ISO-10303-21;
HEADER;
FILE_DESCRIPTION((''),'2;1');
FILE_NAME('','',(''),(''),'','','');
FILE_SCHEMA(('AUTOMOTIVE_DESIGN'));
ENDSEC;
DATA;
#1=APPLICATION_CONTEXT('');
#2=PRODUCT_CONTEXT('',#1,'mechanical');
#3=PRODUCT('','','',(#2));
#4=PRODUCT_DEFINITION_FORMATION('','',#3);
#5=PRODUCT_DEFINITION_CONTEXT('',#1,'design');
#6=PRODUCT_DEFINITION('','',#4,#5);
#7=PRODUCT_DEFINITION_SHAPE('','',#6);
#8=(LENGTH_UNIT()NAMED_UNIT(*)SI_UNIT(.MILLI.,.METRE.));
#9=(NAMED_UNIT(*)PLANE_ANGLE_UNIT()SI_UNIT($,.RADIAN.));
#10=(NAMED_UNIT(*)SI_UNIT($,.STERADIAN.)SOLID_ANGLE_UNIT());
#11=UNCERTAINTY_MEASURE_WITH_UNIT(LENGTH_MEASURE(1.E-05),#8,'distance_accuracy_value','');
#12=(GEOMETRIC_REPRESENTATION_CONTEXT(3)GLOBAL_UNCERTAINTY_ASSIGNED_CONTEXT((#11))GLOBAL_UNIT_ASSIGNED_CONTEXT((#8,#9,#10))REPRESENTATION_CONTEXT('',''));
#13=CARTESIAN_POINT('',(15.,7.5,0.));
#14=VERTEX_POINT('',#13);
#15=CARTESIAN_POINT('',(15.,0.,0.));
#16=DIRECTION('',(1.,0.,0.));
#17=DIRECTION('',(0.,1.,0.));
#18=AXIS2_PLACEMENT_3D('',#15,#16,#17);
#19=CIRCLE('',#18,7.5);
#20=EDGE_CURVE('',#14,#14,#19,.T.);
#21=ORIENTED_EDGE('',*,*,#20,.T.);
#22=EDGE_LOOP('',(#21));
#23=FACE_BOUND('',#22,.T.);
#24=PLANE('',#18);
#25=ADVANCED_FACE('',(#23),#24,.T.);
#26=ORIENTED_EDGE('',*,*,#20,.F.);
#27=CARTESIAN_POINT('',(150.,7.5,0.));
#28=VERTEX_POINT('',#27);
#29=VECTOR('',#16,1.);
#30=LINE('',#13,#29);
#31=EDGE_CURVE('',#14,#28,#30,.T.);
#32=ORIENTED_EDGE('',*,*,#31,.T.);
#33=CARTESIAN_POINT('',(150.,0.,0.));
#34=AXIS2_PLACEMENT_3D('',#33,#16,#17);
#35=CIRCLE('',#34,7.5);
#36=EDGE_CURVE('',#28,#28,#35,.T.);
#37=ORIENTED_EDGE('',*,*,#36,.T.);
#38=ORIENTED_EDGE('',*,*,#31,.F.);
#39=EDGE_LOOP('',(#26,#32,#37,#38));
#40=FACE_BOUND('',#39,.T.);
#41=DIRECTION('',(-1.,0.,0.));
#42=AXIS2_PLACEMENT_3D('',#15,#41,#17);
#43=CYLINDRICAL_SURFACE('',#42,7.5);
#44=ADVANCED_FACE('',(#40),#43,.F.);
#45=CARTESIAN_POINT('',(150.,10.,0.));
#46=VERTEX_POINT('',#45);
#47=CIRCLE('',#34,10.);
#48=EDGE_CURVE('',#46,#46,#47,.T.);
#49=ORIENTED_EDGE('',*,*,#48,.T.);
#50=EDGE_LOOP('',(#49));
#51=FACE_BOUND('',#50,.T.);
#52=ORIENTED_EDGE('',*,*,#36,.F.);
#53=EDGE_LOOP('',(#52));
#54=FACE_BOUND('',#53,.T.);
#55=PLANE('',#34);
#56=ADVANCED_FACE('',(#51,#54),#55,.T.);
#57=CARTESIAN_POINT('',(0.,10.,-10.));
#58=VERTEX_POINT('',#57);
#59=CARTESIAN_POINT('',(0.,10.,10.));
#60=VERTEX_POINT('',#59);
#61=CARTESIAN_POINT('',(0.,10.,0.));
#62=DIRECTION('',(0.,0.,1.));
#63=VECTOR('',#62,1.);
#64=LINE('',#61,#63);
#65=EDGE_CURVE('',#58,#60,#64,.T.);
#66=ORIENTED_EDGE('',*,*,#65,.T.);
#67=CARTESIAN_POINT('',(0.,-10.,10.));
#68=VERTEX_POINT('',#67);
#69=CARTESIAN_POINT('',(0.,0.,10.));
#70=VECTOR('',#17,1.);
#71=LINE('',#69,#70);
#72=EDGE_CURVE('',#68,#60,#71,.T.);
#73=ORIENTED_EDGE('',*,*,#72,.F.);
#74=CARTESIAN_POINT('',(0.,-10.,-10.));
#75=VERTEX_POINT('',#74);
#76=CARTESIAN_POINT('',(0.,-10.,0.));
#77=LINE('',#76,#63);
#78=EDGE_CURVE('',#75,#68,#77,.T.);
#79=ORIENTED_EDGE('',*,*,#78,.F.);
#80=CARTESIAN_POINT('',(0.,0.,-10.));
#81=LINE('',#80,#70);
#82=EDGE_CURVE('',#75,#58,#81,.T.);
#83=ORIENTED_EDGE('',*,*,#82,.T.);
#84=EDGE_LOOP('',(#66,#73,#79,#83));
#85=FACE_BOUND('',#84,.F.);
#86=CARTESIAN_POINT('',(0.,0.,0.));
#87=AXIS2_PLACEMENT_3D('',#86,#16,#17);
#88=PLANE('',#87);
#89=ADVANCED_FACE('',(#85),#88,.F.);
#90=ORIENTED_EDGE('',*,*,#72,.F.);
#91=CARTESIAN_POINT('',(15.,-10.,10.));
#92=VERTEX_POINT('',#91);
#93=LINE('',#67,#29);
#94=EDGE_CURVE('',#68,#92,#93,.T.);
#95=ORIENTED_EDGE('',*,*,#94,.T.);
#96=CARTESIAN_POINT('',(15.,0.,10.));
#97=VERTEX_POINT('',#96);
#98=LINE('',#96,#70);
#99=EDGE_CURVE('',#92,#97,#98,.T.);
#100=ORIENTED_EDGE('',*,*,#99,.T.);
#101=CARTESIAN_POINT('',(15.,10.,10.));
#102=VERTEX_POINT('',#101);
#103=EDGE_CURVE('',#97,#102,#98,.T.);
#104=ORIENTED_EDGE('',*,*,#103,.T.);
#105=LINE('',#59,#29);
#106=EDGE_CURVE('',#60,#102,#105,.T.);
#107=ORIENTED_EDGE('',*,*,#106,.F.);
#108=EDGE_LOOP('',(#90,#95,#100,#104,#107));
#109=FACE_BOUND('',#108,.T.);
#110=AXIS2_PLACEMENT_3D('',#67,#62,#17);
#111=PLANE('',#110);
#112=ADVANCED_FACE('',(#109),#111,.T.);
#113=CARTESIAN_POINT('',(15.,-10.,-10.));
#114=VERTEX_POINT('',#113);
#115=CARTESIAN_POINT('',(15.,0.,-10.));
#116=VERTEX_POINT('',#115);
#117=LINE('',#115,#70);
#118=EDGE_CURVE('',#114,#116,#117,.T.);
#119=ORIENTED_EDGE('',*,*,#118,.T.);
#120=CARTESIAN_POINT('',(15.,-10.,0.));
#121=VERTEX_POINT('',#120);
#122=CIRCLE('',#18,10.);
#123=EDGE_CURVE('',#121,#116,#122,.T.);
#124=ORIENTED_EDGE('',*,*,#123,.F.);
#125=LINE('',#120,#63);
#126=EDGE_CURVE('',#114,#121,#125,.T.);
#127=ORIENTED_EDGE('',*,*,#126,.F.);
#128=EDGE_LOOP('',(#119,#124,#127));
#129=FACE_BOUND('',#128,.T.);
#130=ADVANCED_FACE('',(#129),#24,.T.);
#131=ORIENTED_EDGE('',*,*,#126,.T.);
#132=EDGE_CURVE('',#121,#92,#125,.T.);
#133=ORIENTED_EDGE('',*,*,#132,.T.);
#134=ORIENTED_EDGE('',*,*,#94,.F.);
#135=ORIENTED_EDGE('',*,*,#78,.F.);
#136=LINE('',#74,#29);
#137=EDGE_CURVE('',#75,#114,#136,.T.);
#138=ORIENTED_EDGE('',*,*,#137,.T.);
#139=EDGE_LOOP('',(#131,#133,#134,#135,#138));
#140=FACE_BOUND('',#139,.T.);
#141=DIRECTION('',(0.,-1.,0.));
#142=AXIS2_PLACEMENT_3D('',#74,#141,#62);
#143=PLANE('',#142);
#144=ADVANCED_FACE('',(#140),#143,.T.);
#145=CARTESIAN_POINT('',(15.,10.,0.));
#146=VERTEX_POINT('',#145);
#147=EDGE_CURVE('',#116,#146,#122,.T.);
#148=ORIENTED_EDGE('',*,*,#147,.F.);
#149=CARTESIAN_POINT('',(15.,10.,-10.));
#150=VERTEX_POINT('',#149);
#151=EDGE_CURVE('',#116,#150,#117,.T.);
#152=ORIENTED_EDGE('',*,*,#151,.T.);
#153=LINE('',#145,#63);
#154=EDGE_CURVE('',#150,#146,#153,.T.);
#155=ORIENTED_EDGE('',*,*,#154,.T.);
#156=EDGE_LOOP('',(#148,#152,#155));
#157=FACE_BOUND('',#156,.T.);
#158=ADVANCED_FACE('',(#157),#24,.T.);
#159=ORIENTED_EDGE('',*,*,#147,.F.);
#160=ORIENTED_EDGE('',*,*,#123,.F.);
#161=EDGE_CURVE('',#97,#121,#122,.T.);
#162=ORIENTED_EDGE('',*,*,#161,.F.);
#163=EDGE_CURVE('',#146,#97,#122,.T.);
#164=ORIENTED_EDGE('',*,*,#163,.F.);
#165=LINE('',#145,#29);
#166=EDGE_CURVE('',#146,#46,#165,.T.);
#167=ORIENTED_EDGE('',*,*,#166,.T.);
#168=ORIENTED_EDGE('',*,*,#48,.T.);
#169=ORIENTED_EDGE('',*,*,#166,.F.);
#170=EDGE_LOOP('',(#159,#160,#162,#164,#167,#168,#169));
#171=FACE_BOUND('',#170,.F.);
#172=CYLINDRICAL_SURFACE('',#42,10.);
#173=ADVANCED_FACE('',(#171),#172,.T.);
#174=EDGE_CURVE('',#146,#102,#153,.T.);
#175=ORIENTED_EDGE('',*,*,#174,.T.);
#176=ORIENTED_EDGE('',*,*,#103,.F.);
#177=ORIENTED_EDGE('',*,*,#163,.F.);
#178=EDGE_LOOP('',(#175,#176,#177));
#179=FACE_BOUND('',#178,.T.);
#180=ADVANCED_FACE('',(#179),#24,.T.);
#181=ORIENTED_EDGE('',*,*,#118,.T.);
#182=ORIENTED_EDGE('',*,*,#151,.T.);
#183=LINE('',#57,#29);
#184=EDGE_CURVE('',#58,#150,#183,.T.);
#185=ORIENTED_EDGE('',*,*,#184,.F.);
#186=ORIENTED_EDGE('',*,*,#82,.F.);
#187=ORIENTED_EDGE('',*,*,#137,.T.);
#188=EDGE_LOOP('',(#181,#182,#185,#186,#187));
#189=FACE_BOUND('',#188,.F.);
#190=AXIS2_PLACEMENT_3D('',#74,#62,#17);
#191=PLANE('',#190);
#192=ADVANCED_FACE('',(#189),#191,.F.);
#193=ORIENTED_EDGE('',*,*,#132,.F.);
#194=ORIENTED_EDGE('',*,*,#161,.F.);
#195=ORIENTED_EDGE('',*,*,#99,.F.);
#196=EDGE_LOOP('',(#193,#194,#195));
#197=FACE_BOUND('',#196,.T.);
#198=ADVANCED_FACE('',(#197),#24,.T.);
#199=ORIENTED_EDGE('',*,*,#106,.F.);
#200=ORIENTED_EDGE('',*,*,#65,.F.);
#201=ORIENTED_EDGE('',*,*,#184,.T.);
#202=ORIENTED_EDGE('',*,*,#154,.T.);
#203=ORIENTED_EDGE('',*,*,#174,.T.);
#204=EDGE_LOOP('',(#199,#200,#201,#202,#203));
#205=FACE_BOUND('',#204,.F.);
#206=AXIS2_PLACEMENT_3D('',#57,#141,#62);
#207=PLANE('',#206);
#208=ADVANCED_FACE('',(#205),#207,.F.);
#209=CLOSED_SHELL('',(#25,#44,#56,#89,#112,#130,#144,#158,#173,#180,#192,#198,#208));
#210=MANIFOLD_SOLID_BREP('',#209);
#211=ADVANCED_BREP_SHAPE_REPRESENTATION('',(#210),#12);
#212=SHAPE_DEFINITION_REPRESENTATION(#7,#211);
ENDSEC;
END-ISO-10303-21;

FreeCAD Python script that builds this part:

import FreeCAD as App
import Part
import Sketcher

V = App.Vector
Q = App.Units.Quantity

doc = App.newDocument("Part")
params = doc.addObject("Spreadsheet::Sheet", "Params")
for row, (alias, value) in enumerate([
    ("sketch1_width", "20 mm"),
    ("pad1_length", "15 mm"),
    ("sketch2_diameter", "20 mm"),
    ("sketch2_diameter2", "15 mm"),
    ("pad2_length", "135 mm"),
], start=1):
    params.set(f"A{row}", alias)
    params.set(f"B{row}", "=" + value)
    params.setAlias(f"B{row}", alias)

body = doc.addObject("PartDesign::Body", "Body")

# Sketch on YZ plane
sketch1 = body.newObject("Sketcher::SketchObject", "Sketch")
sketch1.AttachmentSupport = (doc.getObject("YZ_Plane"), [""])
sketch1.MapMode = "FlatFace"
sketch1.addGeometry([
    Part.LineSegment(V(-10, 10, 0), V(-10, -10, 0)),
    Part.LineSegment(V(-10, -10, 0), V(10, -10, 0)),
    Part.LineSegment(V(10, -10, 0), V(10, 10, 0)),
    Part.LineSegment(V(10, 10, 0), V(-10, 10, 0)),
], False)
sketch1.addConstraint([
    Sketcher.Constraint("Coincident", 0, 2, 1, 1),
    Sketcher.Constraint("Coincident", 1, 2, 2, 1),
    Sketcher.Constraint("Coincident", 2, 2, 3, 1),
    Sketcher.Constraint("Coincident", 3, 2, 0, 1),
    Sketcher.Constraint("Vertical", 0),
    Sketcher.Constraint("Horizontal", 1),
    Sketcher.Constraint("Vertical", 2),
    Sketcher.Constraint("Horizontal", 3),
    Sketcher.Constraint("Symmetric", 0, 2, 2, 2, -1, 1),
    Sketcher.Constraint("Equal", 3, 0),
    Sketcher.Constraint("DistanceX", 1, 1, 1, 2, Q("20 mm")),
])
sketch1.setExpression("Constraints[10]", "Params.sketch1_width")
pad1 = body.newObject("PartDesign::Pad", "Pad")
pad1.Profile = sketch1
pad1.setExpression("Length", "Params.pad1_length")

# Sketch on YZ plane
sketch2 = body.newObject("Sketcher::SketchObject", "Sketch001")
sketch2.AttachmentSupport = (doc.getObject("YZ_Plane"), [""])
sketch2.MapMode = "FlatFace"
sketch2.AttachmentOffset = App.Placement(V(0, 0, 15), App.Rotation())
sketch2.addGeometry([
    Part.Circle(V(0, 0, 0), V(0, 0, 1), 10),
    Part.Circle(V(0, 0, 0), V(0, 0, 1), 8),
], False)
sketch2.addConstraint([
    Sketcher.Constraint("Coincident", 0, 3, -1, 1),
    Sketcher.Constraint("Coincident", 1, 3, -1, 1),
    Sketcher.Constraint("Diameter", 0, Q("20 mm")),
    Sketcher.Constraint("Diameter", 1, Q("15 mm")),
])
sketch2.setExpression("Constraints[2]", "Params.sketch2_diameter")
sketch2.setExpression("Constraints[3]", "Params.sketch2_diameter2")
pad2 = body.newObject("PartDesign::Pad", "Pad001")
pad2.Profile = sketch2
pad2.setExpression("Length", "Params.pad2_length")

doc.recompute()
